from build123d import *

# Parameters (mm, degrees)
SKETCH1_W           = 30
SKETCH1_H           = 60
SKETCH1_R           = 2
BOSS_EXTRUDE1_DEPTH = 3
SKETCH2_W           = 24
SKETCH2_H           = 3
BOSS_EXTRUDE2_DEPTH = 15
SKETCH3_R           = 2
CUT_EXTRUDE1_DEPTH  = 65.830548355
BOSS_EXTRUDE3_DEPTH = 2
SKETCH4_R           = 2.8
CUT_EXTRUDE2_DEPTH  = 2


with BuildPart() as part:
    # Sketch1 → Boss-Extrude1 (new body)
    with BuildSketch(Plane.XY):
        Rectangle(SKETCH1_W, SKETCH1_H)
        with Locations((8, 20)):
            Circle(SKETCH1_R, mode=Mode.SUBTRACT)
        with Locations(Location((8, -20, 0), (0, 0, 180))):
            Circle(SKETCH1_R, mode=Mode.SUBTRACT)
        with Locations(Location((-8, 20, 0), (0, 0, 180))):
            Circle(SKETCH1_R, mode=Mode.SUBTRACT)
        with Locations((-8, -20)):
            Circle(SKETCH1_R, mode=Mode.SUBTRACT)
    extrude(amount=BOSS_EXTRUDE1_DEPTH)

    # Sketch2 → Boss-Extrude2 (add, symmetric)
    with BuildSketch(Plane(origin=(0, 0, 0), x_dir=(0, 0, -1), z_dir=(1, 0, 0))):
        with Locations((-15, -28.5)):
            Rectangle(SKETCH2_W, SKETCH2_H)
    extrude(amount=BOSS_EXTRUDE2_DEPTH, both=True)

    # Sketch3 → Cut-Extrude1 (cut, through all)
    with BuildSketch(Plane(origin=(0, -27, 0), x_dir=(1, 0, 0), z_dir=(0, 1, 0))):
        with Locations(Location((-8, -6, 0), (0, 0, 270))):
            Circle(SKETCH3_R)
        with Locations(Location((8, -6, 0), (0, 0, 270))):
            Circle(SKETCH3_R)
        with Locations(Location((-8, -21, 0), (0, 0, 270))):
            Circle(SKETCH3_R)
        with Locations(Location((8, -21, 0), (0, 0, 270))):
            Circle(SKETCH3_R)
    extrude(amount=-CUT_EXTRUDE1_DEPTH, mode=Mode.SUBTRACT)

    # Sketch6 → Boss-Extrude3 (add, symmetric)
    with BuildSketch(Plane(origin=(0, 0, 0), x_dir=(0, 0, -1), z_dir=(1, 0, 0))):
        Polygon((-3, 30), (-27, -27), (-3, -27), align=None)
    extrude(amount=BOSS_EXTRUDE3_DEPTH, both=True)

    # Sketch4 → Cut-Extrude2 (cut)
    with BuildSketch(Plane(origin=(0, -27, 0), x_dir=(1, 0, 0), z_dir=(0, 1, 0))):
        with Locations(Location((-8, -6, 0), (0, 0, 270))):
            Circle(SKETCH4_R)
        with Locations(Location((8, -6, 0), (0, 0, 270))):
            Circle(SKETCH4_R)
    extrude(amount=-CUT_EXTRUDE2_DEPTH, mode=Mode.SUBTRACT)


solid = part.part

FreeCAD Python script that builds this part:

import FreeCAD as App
import Part
import Sketcher

V = App.Vector
Q = App.Units.Quantity

doc = App.newDocument("Part")
body = doc.addObject("PartDesign::Body", "Body")

sketch1 = body.newObject("Sketcher::SketchObject", "Sketch")
sketch1.AttachmentSupport = (doc.getObject("XY_Plane"), [""])
sketch1.MapMode = "FlatFace"
sketch1.addGeometry([
    Part.LineSegment(V(-15, 30, 0), V(-15, -30, 0)),
    Part.LineSegment(V(-15, -30, 0), V(15, -30, 0)),
    Part.LineSegment(V(15, -30, 0), V(15, 30, 0)),
    Part.LineSegment(V(15, 30, 0), V(-15, 30, 0)),
    Part.Circle(V(-8, -20, 0), V(0, 0, 1), 2),
    Part.Circle(V(8, -20, 0), V(0, 0, 1), 2),
    Part.Circle(V(-8, 20, 0), V(0, 0, 1), 2),
    Part.Circle(V(8, 20, 0), V(0, 0, 1), 2),
], False)
sketch1.addConstraint([
    Sketcher.Constraint("Coincident", 0, 2, 1, 1),
    Sketcher.Constraint("Coincident", 1, 2, 2, 1),
    Sketcher.Constraint("Coincident", 2, 2, 3, 1),
    Sketcher.Constraint("Coincident", 3, 2, 0, 1),
    Sketcher.Constraint("Vertical", 0),
    Sketcher.Constraint("Horizontal", 1),
    Sketcher.Constraint("Vertical", 2),
    Sketcher.Constraint("Horizontal", 3),
    Sketcher.Constraint("Equal", 4, 5),
    Sketcher.Constraint("Equal", 5, 6),
    Sketcher.Constraint("Equal", 6, 7),
    Sketcher.Constraint("Symmetric", 5, 3, 6, 3, -1, 1),
    Sketcher.Constraint("Symmetric", 4, 3, 7, 3, -1, 1),
    Sketcher.Constraint("Symmetric", 0, 2, 2, 2, -1, 1),
    Sketcher.Constraint("Symmetric", 4, 3, 5, 3, -2),
    Sketcher.Constraint("Diameter", 4, Q("4 mm")),
    Sketcher.Constraint("DistanceX", 1, 1, 1, 2, Q("30 mm")),
    Sketcher.Constraint("DistanceY", 0, 2, 0, 1, Q("60 mm")),
    Sketcher.Constraint("DistanceX", 4, 3, -1, 1, Q("8 mm")),
    Sketcher.Constraint("DistanceY", 4, 3, -1, 1, Q("20 mm")),
])
pad1 = body.newObject("PartDesign::Pad", "Pad")
pad1.Profile = sketch1
pad1.Length = 3

sketch2 = body.newObject("Sketcher::SketchObject", "Sketch001")
sketch2.AttachmentSupport = (doc.getObject("YZ_Plane"), [""])
sketch2.MapMode = "FlatFace"
sketch2.addGeometry([
    Part.LineSegment(V(-27, 27, 0), V(-30, 27, 0)),
    Part.LineSegment(V(-30, 27, 0), V(-30, 3, 0)),
    Part.LineSegment(V(-30, 3, 0), V(-27, 3, 0)),
    Part.LineSegment(V(-27, 3, 0), V(-27, 27, 0)),
], False)
sketch2.addConstraint([
    Sketcher.Constraint("Coincident", 0, 2, 1, 1),
    Sketcher.Constraint("Coincident", 1, 2, 2, 1),
    Sketcher.Constraint("Coincident", 2, 2, 3, 1),
    Sketcher.Constraint("Coincident", 3, 2, 0, 1),
    Sketcher.Constraint("Horizontal", 0),
    Sketcher.Constraint("Vertical", 1),
    Sketcher.Constraint("Horizontal", 2),
    Sketcher.Constraint("Vertical", 3),
    Sketcher.Constraint("DistanceX", 0, 2, 0, 1, Q("3 mm")),
    Sketcher.Constraint("DistanceY", 1, 2, 1, 1, Q("24 mm")),
    Sketcher.Constraint("DistanceX", 0, 2, -1, 1, Q("30 mm")),
    Sketcher.Constraint("DistanceY", -1, 1, 0, 2, Q("27 mm")),
])
pad2 = body.newObject("PartDesign::Pad", "Pad001")
pad2.Profile = sketch2
pad2.Length = 30
pad2.Midplane = True

sketch3 = body.newObject("Sketcher::SketchObject", "Sketch002")
sketch3.AttachmentSupport = (doc.getObject("XZ_Plane"), [""])
sketch3.MapMode = "FlatFace"
sketch3.AttachmentOffset = App.Placement(V(0, 0, 27), App.Rotation())
sketch3.addGeometry([
    Part.Circle(V(-8, 6, 0), V(0, 0, 1), 2),
    Part.Circle(V(8, 6, 0), V(0, 0, 1), 2),
    Part.Circle(V(-8, 21, 0), V(0, 0, 1), 2),
    Part.Circle(V(8, 21, 0), V(0, 0, 1), 2),
], False)
sketch3.addConstraint([
    Sketcher.Constraint("Equal", 0, 1),
    Sketcher.Constraint("Equal", 1, 2),
    Sketcher.Constraint("Equal", 2, 3),
    Sketcher.Constraint("Symmetric", 0, 3, 1, 3, -2),
    Sketcher.Constraint("Symmetric", 2, 3, 3, 3, -2),
    Sketcher.Constraint("Vertical", 0, 3, 2, 3),
    Sketcher.Constraint("Diameter", 0, Q("4 mm")),
    Sketcher.Constraint("DistanceX", 0, 3, -1, 1, Q("8 mm")),
    Sketcher.Constraint("DistanceY", -1, 1, 0, 3, Q("6 mm")),
    Sketcher.Constraint("DistanceY", -1, 1, 2, 3, Q("21 mm")),
])
pocket1 = body.newObject("PartDesign::Pocket", "Pocket")
pocket1.Profile = sketch3
pocket1.Type = "ThroughAll"
pocket1.Reversed = True

sketch4 = body.newObject("Sketcher::SketchObject", "Sketch003")
sketch4.AttachmentSupport = (doc.getObject("YZ_Plane"), [""])
sketch4.MapMode = "FlatFace"
sketch4.addGeometry([
    Part.LineSegment(V(30, 3, 0), V(-27, 27, 0)),
    Part.LineSegment(V(-27, 27, 0), V(-27, 3, 0)),
    Part.LineSegment(V(-27, 3, 0), V(30, 3, 0)),
], False)
sketch4.addConstraint([
    Sketcher.Constraint("Coincident", 0, 2, 1, 1),
    Sketcher.Constraint("Coincident", 1, 2, 2, 1),
    Sketcher.Constraint("Coincident", 2, 2, 0, 1),
    Sketcher.Constraint("Vertical", 1),
    Sketcher.Constraint("Horizontal", 2),
    Sketcher.Constraint("DistanceX", 2, 1, 2, 2, Q("57 mm")),
    Sketcher.Constraint("DistanceY", 1, 2, 1, 1, Q("24 mm")),
    Sketcher.Constraint("DistanceX", 0, 2, -1, 1, Q("27 mm")),
    Sketcher.Constraint("DistanceY", -1, 1, 0, 2, Q("27 mm")),
])
pad3 = body.newObject("PartDesign::Pad", "Pad002")
pad3.Profile = sketch4
pad3.Length = 4
pad3.Midplane = True

sketch5 = body.newObject("Sketcher::SketchObject", "Sketch004")
sketch5.AttachmentSupport = (doc.getObject("XZ_Plane"), [""])
sketch5.MapMode = "FlatFace"
sketch5.AttachmentOffset = App.Placement(V(0, 0, 27), App.Rotation())
sketch5.addGeometry([
    Part.Circle(V(-8, 6, 0), V(0, 0, 1), 2.8),
    Part.Circle(V(8, 6, 0), V(0, 0, 1), 2.8),
], False)
sketch5.addConstraint([
    Sketcher.Constraint("Equal", 0, 1),
    Sketcher.Constraint("Symmetric", 0, 3, 1, 3, -2),
    Sketcher.Constraint("Diameter", 0, Q("5.6 mm")),
    Sketcher.Constraint("DistanceX", 0, 3, -1, 1, Q("8 mm")),
    Sketcher.Constraint("DistanceY", -1, 1, 0, 3, Q("6 mm")),
])
pocket2 = body.newObject("PartDesign::Pocket", "Pocket001")
pocket2.Profile = sketch5
pocket2.Length = 2
pocket2.Reversed = True

doc.recompute()
